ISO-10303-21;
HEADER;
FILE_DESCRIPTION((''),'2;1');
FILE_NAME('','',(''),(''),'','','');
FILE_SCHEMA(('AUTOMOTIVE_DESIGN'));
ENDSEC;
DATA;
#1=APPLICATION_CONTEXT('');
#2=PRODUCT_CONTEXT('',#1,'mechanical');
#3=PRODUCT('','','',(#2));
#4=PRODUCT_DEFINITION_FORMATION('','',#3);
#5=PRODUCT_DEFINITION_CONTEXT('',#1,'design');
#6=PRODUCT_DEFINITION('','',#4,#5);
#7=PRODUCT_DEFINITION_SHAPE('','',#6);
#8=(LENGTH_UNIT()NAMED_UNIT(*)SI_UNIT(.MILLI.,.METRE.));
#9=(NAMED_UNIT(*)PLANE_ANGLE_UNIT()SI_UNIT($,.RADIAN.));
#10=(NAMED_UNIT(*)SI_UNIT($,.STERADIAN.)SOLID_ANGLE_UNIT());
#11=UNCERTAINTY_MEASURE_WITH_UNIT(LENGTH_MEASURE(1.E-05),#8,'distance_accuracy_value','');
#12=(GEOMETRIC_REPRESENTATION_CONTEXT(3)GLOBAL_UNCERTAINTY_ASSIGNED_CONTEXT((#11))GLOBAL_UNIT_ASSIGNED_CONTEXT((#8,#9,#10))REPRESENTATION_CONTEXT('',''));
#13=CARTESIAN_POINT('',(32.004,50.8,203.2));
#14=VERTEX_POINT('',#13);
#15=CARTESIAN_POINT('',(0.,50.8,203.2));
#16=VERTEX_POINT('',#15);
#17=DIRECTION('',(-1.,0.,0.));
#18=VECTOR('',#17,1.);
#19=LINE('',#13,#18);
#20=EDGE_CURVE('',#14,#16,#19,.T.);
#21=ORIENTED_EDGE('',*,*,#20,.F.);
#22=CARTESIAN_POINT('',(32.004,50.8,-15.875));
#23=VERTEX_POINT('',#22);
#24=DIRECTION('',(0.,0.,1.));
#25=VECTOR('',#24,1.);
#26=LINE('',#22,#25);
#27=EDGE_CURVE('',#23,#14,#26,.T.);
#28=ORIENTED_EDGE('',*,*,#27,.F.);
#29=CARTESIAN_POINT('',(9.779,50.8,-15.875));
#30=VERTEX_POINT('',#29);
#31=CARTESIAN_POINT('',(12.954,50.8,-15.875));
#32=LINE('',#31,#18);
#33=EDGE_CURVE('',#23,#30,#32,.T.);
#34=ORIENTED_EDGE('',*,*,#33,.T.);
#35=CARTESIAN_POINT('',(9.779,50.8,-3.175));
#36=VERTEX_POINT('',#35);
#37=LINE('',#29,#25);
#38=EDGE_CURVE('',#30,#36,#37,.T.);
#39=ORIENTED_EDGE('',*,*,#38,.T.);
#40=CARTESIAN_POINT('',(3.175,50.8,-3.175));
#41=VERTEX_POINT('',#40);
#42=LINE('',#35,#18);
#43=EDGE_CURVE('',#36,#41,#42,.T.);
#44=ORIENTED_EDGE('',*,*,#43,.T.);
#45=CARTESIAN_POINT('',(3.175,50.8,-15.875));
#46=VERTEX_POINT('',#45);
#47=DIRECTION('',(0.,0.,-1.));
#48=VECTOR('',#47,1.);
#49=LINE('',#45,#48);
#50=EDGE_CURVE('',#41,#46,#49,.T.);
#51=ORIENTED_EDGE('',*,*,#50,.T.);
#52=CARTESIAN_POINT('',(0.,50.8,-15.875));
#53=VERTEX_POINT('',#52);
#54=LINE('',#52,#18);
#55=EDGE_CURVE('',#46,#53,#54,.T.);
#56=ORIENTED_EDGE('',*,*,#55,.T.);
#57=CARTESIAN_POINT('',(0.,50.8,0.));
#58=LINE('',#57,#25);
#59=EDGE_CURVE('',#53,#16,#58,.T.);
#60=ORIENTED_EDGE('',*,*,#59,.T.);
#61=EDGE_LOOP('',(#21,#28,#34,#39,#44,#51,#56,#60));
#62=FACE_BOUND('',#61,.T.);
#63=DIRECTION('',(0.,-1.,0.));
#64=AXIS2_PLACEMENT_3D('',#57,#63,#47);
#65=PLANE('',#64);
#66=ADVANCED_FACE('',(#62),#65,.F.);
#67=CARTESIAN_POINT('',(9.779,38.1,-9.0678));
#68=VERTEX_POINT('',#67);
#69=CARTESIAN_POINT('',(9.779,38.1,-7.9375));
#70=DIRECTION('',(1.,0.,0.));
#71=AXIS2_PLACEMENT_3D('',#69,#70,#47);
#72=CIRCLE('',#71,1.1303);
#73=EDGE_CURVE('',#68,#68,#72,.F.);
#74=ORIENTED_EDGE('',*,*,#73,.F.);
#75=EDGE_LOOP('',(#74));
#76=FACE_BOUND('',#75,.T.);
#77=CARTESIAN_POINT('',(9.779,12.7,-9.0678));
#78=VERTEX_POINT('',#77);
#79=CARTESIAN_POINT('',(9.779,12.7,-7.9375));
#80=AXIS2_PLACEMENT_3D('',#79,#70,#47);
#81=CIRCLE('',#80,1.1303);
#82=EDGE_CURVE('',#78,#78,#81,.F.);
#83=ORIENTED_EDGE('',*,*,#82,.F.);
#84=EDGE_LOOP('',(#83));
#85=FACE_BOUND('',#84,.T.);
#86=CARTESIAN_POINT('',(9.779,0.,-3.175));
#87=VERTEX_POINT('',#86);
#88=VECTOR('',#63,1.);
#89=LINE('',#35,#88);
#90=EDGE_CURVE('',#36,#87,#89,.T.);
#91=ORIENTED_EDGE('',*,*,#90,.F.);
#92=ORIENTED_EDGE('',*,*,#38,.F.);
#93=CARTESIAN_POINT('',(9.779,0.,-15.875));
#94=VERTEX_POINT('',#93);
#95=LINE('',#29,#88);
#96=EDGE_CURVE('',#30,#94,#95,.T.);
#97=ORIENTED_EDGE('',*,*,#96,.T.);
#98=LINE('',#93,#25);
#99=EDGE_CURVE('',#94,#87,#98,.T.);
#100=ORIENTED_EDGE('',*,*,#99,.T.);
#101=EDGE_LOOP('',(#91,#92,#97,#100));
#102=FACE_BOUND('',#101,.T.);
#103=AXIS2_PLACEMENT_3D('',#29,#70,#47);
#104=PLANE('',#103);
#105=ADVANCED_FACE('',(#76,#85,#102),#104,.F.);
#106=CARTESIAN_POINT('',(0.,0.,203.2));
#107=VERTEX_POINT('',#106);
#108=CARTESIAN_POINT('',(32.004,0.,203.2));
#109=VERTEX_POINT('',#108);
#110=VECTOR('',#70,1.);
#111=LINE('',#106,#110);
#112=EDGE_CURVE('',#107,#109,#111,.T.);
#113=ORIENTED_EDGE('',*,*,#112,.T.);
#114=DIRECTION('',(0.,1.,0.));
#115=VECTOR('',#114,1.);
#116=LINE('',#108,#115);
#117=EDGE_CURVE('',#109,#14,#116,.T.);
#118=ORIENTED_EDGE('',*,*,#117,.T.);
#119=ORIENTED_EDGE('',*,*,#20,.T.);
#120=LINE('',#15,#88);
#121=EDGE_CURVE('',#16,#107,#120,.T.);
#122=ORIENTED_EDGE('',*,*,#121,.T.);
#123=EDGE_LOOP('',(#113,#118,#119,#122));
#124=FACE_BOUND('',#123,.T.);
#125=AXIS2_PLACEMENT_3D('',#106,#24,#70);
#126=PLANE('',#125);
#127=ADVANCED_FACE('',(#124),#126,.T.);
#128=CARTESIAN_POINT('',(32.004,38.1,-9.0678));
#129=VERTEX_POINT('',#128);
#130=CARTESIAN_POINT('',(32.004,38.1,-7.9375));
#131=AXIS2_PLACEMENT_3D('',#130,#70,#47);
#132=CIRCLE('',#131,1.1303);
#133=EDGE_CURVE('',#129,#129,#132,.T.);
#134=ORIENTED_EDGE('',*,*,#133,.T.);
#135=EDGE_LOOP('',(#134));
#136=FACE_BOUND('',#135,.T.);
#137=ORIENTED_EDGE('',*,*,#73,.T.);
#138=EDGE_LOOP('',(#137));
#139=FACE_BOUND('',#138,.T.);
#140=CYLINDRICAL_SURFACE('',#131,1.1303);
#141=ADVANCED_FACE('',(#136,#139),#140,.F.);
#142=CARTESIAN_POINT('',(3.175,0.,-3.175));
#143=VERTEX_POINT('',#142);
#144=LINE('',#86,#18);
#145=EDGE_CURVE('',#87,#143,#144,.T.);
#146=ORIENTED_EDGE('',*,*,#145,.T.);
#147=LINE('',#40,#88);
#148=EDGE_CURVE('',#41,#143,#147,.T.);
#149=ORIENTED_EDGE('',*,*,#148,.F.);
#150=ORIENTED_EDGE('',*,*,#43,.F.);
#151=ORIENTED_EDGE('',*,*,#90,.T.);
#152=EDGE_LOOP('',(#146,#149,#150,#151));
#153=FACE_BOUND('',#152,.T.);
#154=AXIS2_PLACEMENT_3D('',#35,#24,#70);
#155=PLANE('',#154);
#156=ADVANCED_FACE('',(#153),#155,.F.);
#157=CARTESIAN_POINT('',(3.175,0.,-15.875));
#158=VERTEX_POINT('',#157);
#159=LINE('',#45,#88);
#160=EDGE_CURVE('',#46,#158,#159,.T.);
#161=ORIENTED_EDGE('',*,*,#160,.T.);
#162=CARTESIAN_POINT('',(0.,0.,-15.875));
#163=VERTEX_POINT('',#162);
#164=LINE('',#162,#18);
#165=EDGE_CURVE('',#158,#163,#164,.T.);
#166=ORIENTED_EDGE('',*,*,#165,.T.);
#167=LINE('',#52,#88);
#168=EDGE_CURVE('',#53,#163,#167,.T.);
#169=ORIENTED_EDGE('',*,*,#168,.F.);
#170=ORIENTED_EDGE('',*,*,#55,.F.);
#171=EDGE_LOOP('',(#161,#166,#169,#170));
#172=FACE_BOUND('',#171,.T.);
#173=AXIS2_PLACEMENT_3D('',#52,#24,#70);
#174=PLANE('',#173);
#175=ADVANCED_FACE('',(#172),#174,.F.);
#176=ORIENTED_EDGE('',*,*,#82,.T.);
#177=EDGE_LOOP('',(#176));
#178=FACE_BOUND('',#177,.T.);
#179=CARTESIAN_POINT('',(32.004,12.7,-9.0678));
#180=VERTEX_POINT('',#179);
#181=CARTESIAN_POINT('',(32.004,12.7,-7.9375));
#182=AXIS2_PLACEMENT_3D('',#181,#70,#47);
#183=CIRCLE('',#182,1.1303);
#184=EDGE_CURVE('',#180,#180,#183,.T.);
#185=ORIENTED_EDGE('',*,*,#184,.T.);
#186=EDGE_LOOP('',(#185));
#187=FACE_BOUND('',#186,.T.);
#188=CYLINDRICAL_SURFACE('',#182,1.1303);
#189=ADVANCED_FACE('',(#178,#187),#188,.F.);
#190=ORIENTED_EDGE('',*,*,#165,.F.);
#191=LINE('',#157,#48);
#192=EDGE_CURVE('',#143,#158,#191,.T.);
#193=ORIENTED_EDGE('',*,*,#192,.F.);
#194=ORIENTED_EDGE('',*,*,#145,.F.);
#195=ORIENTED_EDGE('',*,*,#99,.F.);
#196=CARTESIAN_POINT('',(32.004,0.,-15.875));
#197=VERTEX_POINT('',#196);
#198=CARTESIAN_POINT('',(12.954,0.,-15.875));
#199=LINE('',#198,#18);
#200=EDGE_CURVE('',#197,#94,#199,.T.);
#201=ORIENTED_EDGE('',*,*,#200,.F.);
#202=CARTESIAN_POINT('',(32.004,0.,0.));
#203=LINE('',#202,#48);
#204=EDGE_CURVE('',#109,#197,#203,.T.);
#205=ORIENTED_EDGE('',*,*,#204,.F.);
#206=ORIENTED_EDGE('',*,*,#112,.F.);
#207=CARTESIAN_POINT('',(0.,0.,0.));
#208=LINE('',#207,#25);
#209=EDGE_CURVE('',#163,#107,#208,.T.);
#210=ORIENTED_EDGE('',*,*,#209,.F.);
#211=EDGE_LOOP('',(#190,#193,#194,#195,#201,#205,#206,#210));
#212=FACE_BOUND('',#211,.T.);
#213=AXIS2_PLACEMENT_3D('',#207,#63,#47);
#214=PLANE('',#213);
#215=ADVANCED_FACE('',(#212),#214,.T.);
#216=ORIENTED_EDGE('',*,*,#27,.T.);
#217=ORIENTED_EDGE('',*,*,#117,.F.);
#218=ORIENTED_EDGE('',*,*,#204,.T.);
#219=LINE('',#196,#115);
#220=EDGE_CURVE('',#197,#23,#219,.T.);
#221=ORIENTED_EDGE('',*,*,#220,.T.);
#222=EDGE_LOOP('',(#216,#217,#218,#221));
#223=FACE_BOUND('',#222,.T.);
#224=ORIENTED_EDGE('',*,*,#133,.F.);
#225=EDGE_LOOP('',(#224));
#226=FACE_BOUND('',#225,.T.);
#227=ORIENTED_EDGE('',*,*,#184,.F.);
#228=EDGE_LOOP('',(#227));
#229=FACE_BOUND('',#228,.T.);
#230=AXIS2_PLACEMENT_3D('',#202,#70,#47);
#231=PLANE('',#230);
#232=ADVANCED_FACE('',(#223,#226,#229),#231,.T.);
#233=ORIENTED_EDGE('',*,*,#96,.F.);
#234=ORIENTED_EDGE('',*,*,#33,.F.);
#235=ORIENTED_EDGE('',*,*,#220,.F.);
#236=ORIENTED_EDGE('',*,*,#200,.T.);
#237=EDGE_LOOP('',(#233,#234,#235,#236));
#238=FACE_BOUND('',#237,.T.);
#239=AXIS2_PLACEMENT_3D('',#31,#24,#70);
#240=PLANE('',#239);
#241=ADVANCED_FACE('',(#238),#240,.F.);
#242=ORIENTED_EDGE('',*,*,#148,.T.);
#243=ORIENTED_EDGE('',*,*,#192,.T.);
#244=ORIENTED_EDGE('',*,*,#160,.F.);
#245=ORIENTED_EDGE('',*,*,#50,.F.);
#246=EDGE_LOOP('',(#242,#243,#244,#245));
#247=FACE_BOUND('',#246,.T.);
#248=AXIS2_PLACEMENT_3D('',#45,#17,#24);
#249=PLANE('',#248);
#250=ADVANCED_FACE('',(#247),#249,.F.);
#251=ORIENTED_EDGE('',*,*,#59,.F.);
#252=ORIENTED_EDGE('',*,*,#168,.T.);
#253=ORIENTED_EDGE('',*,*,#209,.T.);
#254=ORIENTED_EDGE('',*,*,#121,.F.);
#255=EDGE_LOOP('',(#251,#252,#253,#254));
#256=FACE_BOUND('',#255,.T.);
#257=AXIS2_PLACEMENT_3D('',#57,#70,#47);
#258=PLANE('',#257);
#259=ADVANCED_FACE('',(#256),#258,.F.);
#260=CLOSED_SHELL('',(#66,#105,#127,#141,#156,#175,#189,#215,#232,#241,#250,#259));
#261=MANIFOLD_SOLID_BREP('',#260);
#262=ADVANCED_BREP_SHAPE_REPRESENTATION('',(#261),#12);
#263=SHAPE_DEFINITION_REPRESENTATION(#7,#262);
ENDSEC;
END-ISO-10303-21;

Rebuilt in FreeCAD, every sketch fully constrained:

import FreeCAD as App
import Part
import Sketcher

V = App.Vector
Q = App.Units.Quantity

doc = App.newDocument("Part")
body = doc.addObject("PartDesign::Body", "Body")

# Sketch on XZ plane
sketch1 = body.newObject("Sketcher::SketchObject", "Sketch")
sketch1.AttachmentSupport = (doc.getObject("XZ_Plane"), [""])
sketch1.MapMode = "FlatFace"
sketch1.addGeometry([
    Part.LineSegment(V(0, -15.9, 0), V(0, 0, 0)),  # 0
    Part.LineSegment(V(0, 0, 0), V(13, 0, 0)),  # 1
    Part.LineSegment(V(13, 0, 0), V(13, -15.9, 0)),  # 2
    Part.LineSegment(V(13, -15.9, 0), V(9.8, -15.9, 0)),  # 3
    Part.LineSegment(V(9.8, -15.9, 0), V(9.8, -3.2, 0)),  # 4
    Part.LineSegment(V(9.8, -3.2, 0), V(3.2, -3.2, 0)),  # 5
    Part.LineSegment(V(3.2, -3.2, 0), V(3.2, -15.9, 0)),  # 6
    Part.LineSegment(V(3.2, -15.9, 0), V(0, -15.9, 0)),  # 7
], False)
sketch1.addConstraint([
    Sketcher.Constraint("Coincident", 0, 2, 1, 1),
    Sketcher.Constraint("Coincident", 1, 2, 2, 1),
    Sketcher.Constraint("Coincident", 2, 2, 3, 1),
    Sketcher.Constraint("Coincident", 3, 2, 4, 1),
    Sketcher.Constraint("Coincident", 4, 2, 5, 1),
    Sketcher.Constraint("Coincident", 5, 2, 6, 1),
    Sketcher.Constraint("Coincident", 6, 2, 7, 1),
    Sketcher.Constraint("Coincident", 7, 2, 0, 1),
    Sketcher.Constraint("Vertical", 0),
    Sketcher.Constraint("Horizontal", 1),
    Sketcher.Constraint("Vertical", 2),
    Sketcher.Constraint("Horizontal", 3),
    Sketcher.Constraint("Vertical", 4),
    Sketcher.Constraint("Horizontal", 5),
    Sketcher.Constraint("Vertical", 6),
    Sketcher.Constraint("Horizontal", 7),
    Sketcher.Constraint("Coincident", 0, 2, -1, 1),
    Sketcher.Constraint("Horizontal", 3, 2, 6, 2),
    Sketcher.Constraint("Equal", 3, 7),
    Sketcher.Constraint("DistanceY", 4, 1, 4, 2, Q("0.5 in")),
    Sketcher.Constraint("DistanceX", 1, 1, 1, 2, Q("0.51 in")),
    Sketcher.Constraint("DistanceX", 5, 2, 5, 1, Q("0.26 in")),
    Sketcher.Constraint("DistanceY", 0, 1, 0, 2, Q("0.625 in")),
])
pad1 = body.newObject("PartDesign::Pad", "Pad")
pad1.Profile = sketch1
pad1.Length = Q("2 in")
pad1.Reversed = True

# Sketch on YZ plane
sketch2 = body.newObject("Sketcher::SketchObject", "Sketch001")
sketch2.AttachmentSupport = (doc.getObject("YZ_Plane"), [""])
sketch2.MapMode = "FlatFace"
sketch2.AttachmentOffset = App.Placement(V(0, 0, 0.51 * 25.4), App.Rotation())
sketch2.addGeometry([
    Part.LineSegment(V(51, 0, 0), V(0, 0, 0)),
    Part.LineSegment(V(0, 0, 0), V(0, -16, 0)),
    Part.LineSegment(V(0, -16, 0), V(51, -16, 0)),
    Part.LineSegment(V(51, -16, 0), V(51, 0, 0)),
], False)
sketch2.addConstraint([
    Sketcher.Constraint("Coincident", 0, 2, 1, 1),
    Sketcher.Constraint("Coincident", 1, 2, 2, 1),
    Sketcher.Constraint("Coincident", 2, 2, 3, 1),
    Sketcher.Constraint("Coincident", 3, 2, 0, 1),
    Sketcher.Constraint("Horizontal", 0),
    Sketcher.Constraint("Vertical", 1),
    Sketcher.Constraint("Horizontal", 2),
    Sketcher.Constraint("Vertical", 3),
    Sketcher.Constraint("Coincident", 0, 2, -1, 1),
    Sketcher.Constraint("DistanceX", 0, 2, 0, 1, Q("2 in")),
    Sketcher.Constraint("DistanceY", 1, 2, 1, 1, Q("0.625 in")),
])
pad2 = body.newObject("PartDesign::Pad", "Pad001")
pad2.Profile = sketch2
pad2.Length = Q("0.75 in")

# Sketch on YZ plane
sketch3 = body.newObject("Sketcher::SketchObject", "Sketch002")
sketch3.AttachmentSupport = (doc.getObject("YZ_Plane"), [""])
sketch3.MapMode = "FlatFace"
sketch3.AttachmentOffset = App.Placement(V(0, 0, 1.26 * 25.4), App.Rotation())
sketch3.addGeometry(Part.Circle(V(12.7, -7.9, 0), V(0, 0, 1), 1.1), False)
sketch3.addConstraint([
    Sketcher.Constraint("Diameter", 0, Q("0.089 in")),
    Sketcher.Constraint("DistanceX", -1, 1, 0, 3, Q("0.5 in")),
    Sketcher.Constraint("DistanceY", 0, 3, -1, 1, Q("0.3125 in")),
])
pocket1 = body.newObject("PartDesign::Pocket", "Pocket")
pocket1.Profile = sketch3
pocket1.Type = "UpToFirst"

# Sketch on YZ plane
sketch4 = body.newObject("Sketcher::SketchObject", "Sketch003")
sketch4.AttachmentSupport = (doc.getObject("YZ_Plane"), [""])
sketch4.MapMode = "FlatFace"
sketch4.AttachmentOffset = App.Placement(V(0, 0, 1.26 * 25.4), App.Rotation())
sketch4.addGeometry(Part.Circle(V(38.1, -7.9, 0), V(0, 0, 1), 1.1), False)
sketch4.addConstraint([
    Sketcher.Constraint("Diameter", 0, Q("0.089 in")),
    Sketcher.Constraint("DistanceX", -1, 1, 0, 3, Q("1.5 in")),
    Sketcher.Constraint("DistanceY", 0, 3, -1, 1, Q("0.3125 in")),
])
pocket2 = body.newObject("PartDesign::Pocket", "Pocket001")
pocket2.Profile = sketch4
pocket2.Type = "UpToFirst"

# Sketch on XY plane
sketch5 = body.newObject("Sketcher::SketchObject", "Sketch004")
sketch5.AttachmentSupport = (doc.getObject("XY_Plane"), [""])
sketch5.MapMode = "FlatFace"
sketch5.addGeometry([
    Part.LineSegment(V(0, 51, 0), V(0, 0, 0)),
    Part.LineSegment(V(0, 0, 0), V(32, 0, 0)),
    Part.LineSegment(V(32, 0, 0), V(32, 51, 0)),
    Part.LineSegment(V(32, 51, 0), V(0, 51, 0)),
], False)
sketch5.addConstraint([
    Sketcher.Constraint("Coincident", 0, 2, 1, 1),
    Sketcher.Constraint("Coincident", 1, 2, 2, 1),
    Sketcher.Constraint("Coincident", 2, 2, 3, 1),
    Sketcher.Constraint("Coincident", 3, 2, 0, 1),
    Sketcher.Constraint("Vertical", 0),
    Sketcher.Constraint("Horizontal", 1),
    Sketcher.Constraint("Vertical", 2),
    Sketcher.Constraint("Horizontal", 3),
    Sketcher.Constraint("Coincident", 0, 2, -1, 1),
    Sketcher.Constraint("DistanceY", 0, 2, 0, 1, Q("2 in")),
    Sketcher.Constraint("DistanceX", 1, 1, 1, 2, Q("1.26 in")),
])
pad3 = body.newObject("PartDesign::Pad", "Pad002")
pad3.Profile = sketch5
pad3.Length = Q("8 in")

doc.recompute()
